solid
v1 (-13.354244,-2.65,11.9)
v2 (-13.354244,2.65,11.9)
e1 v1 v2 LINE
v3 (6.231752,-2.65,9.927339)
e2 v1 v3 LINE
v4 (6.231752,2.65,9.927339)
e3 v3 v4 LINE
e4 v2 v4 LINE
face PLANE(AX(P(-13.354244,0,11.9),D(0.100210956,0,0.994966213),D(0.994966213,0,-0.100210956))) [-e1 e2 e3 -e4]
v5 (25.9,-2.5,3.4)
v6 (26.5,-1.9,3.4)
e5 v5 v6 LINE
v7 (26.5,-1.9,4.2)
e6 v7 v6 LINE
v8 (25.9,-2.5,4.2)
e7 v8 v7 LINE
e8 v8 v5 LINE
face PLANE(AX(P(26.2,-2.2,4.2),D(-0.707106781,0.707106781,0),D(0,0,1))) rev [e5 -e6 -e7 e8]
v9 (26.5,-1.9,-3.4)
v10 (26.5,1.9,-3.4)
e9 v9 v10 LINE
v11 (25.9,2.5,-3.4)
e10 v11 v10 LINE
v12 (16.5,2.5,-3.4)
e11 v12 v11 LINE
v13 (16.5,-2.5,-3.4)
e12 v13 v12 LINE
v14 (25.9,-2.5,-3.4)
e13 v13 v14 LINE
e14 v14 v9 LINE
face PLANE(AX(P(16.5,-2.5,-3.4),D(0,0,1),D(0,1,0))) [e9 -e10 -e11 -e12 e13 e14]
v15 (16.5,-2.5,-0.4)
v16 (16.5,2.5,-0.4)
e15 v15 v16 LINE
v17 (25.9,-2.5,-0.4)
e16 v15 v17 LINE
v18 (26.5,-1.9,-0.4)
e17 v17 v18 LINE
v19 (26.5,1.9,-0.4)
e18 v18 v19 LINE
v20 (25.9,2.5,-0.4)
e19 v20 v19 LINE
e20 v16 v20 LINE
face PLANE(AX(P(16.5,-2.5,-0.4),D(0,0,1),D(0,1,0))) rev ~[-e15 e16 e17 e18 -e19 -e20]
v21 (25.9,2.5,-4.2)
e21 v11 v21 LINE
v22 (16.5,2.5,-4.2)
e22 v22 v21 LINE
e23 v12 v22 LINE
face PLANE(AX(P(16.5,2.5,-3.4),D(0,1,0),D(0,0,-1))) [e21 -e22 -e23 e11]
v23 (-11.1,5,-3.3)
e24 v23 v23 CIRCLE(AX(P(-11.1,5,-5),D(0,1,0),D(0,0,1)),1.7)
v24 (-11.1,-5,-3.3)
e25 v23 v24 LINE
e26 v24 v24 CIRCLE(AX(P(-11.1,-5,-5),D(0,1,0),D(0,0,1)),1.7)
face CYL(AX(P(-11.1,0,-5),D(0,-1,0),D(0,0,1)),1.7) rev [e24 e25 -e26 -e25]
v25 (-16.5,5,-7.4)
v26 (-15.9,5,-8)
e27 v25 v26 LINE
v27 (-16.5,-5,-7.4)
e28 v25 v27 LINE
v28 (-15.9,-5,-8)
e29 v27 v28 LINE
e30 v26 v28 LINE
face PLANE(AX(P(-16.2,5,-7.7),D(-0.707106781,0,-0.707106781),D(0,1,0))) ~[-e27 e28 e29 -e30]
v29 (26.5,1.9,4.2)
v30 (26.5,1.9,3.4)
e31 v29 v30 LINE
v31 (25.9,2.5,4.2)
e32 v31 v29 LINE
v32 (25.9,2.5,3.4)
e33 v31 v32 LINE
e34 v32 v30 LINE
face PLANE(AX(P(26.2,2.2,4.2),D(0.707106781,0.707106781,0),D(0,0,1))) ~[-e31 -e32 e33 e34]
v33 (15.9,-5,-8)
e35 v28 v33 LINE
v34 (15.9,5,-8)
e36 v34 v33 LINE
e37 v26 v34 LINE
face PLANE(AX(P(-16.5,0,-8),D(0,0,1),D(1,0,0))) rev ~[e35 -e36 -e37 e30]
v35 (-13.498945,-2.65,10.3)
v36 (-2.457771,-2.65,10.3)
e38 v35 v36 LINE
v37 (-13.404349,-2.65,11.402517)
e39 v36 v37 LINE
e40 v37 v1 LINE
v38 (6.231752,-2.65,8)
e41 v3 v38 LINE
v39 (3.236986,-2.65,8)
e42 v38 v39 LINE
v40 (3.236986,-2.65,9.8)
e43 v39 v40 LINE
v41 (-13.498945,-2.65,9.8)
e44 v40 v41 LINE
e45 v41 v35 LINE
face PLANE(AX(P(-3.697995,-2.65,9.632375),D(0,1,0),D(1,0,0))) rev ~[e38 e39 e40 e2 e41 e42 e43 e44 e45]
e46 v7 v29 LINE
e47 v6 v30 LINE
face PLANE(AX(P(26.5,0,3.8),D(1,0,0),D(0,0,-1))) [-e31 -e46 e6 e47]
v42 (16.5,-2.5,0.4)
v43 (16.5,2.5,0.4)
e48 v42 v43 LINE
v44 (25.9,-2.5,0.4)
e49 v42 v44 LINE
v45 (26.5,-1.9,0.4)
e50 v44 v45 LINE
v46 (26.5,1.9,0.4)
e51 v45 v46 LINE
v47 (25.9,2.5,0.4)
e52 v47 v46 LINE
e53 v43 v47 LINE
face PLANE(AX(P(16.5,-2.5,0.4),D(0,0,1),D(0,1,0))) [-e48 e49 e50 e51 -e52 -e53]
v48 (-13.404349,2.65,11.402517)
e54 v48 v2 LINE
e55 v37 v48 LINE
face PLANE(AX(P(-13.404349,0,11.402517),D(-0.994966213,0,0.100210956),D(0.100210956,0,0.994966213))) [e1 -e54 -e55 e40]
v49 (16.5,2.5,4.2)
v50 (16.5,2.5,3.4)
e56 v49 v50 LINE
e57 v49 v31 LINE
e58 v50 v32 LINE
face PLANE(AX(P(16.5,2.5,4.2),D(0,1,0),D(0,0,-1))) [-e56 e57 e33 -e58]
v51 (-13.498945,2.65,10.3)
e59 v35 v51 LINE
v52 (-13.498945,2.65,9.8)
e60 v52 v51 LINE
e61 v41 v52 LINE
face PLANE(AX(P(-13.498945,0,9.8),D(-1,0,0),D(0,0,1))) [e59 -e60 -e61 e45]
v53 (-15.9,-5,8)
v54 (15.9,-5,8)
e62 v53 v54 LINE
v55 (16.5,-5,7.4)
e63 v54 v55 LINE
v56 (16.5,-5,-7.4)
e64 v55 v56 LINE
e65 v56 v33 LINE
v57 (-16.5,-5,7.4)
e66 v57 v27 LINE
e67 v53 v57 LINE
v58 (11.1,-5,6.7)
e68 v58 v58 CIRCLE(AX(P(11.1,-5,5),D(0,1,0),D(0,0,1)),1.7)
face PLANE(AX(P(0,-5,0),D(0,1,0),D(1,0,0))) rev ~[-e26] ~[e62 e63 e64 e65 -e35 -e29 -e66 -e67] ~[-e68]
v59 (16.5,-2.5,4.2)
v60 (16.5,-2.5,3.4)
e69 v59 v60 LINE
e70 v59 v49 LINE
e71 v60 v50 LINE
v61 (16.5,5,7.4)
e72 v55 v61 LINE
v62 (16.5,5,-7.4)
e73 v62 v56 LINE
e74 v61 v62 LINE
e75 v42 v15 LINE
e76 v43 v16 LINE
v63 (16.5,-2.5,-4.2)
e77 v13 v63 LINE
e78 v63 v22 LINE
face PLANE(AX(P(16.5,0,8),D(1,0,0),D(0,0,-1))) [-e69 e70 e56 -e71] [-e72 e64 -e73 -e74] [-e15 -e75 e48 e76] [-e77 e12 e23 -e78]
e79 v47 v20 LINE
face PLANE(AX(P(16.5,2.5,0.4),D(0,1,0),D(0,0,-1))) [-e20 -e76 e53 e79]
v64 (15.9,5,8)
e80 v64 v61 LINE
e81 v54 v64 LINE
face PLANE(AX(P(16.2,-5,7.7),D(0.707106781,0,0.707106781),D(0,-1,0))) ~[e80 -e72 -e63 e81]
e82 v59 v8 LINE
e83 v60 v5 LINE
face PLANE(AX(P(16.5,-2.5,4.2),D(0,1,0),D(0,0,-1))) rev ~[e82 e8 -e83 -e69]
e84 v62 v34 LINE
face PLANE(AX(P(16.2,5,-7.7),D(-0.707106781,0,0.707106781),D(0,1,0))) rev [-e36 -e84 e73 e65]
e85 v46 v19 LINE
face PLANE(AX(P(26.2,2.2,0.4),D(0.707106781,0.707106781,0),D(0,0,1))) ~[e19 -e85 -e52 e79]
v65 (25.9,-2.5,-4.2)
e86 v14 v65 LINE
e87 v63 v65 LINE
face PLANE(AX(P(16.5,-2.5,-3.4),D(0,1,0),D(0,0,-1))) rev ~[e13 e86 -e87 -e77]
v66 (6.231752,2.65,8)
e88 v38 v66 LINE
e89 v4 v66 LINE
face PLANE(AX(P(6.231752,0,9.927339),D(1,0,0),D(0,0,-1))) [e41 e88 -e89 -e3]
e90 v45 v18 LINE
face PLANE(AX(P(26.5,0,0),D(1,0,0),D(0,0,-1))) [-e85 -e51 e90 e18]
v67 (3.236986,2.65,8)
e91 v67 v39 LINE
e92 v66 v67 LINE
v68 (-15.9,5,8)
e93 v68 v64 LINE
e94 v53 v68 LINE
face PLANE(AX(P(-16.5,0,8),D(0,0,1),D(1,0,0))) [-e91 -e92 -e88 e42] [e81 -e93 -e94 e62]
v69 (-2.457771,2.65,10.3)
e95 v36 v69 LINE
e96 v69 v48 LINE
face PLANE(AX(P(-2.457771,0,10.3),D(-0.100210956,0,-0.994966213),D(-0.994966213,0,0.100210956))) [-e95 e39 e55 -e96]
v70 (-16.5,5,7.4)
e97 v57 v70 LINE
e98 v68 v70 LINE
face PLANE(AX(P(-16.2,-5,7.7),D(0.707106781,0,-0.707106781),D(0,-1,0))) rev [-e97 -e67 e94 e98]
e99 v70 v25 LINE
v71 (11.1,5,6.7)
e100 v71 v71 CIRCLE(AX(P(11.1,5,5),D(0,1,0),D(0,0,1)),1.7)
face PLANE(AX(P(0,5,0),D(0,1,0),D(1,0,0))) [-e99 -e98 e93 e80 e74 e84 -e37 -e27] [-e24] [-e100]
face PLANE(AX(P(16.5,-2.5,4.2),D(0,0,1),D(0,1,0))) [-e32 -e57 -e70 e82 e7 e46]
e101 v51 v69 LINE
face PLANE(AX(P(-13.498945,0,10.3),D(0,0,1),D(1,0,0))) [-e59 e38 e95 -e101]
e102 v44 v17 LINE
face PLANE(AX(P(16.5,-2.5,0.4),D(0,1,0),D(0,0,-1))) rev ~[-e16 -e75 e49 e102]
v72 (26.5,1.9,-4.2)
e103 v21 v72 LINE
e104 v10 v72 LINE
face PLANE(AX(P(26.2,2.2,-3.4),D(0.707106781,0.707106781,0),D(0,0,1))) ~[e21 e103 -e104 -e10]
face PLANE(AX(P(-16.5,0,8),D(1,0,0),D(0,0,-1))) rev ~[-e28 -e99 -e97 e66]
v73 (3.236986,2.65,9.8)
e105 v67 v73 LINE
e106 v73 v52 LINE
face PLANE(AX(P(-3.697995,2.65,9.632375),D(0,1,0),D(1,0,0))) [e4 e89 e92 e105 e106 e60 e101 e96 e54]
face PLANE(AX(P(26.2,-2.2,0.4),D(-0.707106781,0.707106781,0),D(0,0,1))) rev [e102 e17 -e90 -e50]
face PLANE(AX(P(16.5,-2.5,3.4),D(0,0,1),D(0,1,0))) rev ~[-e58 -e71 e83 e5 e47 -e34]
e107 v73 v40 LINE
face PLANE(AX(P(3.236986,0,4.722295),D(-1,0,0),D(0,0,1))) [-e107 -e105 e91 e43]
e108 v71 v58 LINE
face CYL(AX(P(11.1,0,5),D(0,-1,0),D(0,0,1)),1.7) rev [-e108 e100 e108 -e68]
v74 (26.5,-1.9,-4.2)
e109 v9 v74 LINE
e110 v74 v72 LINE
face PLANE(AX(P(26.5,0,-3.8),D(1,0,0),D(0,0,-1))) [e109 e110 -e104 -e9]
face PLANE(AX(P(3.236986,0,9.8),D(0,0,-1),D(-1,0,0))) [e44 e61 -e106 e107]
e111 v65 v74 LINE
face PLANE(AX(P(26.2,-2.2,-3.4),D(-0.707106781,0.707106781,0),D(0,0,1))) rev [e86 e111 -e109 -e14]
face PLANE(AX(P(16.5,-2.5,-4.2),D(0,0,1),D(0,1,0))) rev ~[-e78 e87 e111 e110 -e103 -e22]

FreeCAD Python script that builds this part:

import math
import FreeCAD as App
import Part
import Sketcher

V = App.Vector
Q = App.Units.Quantity


def edges_at(feature, points):
    """Names of the edges that pass closest to the given points."""
    edges = feature.Shape.Edges
    near = lambda p: min(range(len(edges)), key=lambda i: edges[i].distToShape(Part.Vertex(*p))[0])
    return sorted({f"Edge{near(p) + 1}" for p in points})

doc = App.newDocument("Part")
body = doc.addObject("PartDesign::Body", "Body")

sketch1 = body.newObject("Sketcher::SketchObject", "Sketch")
sketch1.AttachmentSupport = (doc.getObject("XZ_Plane"), [""])
sketch1.MapMode = "FlatFace"
sketch1.addGeometry([
    Part.LineSegment(V(-16.5, -8, 0), V(-16.5, 8, 0)),
    Part.LineSegment(V(-16.5, 8, 0), V(16.5, 8, 0)),
    Part.LineSegment(V(16.5, 8, 0), V(16.5, -8, 0)),
    Part.LineSegment(V(16.5, -8, 0), V(-16.5, -8, 0)),
    Part.Circle(V(11.1, 5, 0), V(0, 0, 1), 1.7),
    Part.Circle(V(-11.1, -5, 0), V(0, 0, 1), 1.7),
], False)
sketch1.addConstraint([
    Sketcher.Constraint("Coincident", 0, 2, 1, 1),
    Sketcher.Constraint("Coincident", 1, 2, 2, 1),
    Sketcher.Constraint("Coincident", 2, 2, 3, 1),
    Sketcher.Constraint("Coincident", 3, 2, 0, 1),
    Sketcher.Constraint("Vertical", 0),
    Sketcher.Constraint("Horizontal", 1),
    Sketcher.Constraint("Vertical", 2),
    Sketcher.Constraint("Horizontal", 3),
    Sketcher.Constraint("Equal", 4, 5),
    Sketcher.Constraint("Symmetric", 4, 3, 5, 3, -1, 1),
    Sketcher.Constraint("Symmetric", 0, 2, 2, 2, -1, 1),
    Sketcher.Constraint("Diameter", 4, Q("3.4 mm")),
    Sketcher.Constraint("DistanceX", 1, 1, 1, 2, Q("33 mm")),
    Sketcher.Constraint("DistanceY", 0, 1, 0, 2, Q("16 mm")),
    Sketcher.Constraint("DistanceY", -1, 1, 4, 3, Q("5 mm")),
    Sketcher.Constraint("DistanceX", -1, 1, 4, 3, Q("11.1 mm")),
])
pad1 = body.newObject("PartDesign::Pad", "Pad")
pad1.Profile = sketch1
pad1.Length = 10
pad1.Midplane = True

sketch2 = body.newObject("Sketcher::SketchObject", "Sketch001")
sketch2.AttachmentSupport = (doc.getObject("XZ_Plane"), [""])
sketch2.MapMode = "FlatFace"
sketch2.addGeometry([
    Part.LineSegment(V(3.236986, 9.8, 0), V(-13.498945, 9.8, 0)),
    Part.LineSegment(V(-13.498945, 9.8, 0), V(-13.498945, 10.3, 0)),
    Part.LineSegment(V(-13.498945, 10.3, 0), V(-2.457771, 10.3, 0)),
    Part.LineSegment(V(-2.457771, 10.3, 0), V(-13.404349, 11.402517, 0)),
    Part.LineSegment(V(-13.404349, 11.402517, 0), V(-13.354244, 11.9, 0)),
    Part.LineSegment(V(-13.354244, 11.9, 0), V(6.231752, 9.927339, 0)),
    Part.LineSegment(V(6.231752, 9.927339, 0), V(6.231752, 4.606941, 0)),
    Part.ArcOfCircle(Part.Circle(V(4.736956, 4.731773, 0), V(0, 0, 1), 1.5), math.radians(-179.637957), math.radians(-4.77373)),
    Part.LineSegment(V(3.236986, 4.722295, 0), V(3.236986, 9.8, 0)),
], False)
sketch2.addConstraint([
    Sketcher.Constraint("Coincident", 0, 2, 1, 1),
    Sketcher.Constraint("Coincident", 1, 2, 2, 1),
    Sketcher.Constraint("Coincident", 2, 2, 3, 1),
    Sketcher.Constraint("Coincident", 3, 2, 4, 1),
    Sketcher.Constraint("Coincident", 4, 2, 5, 1),
    Sketcher.Constraint("Coincident", 5, 2, 6, 1),
    Sketcher.Constraint("Coincident", 6, 2, 7, 2),
    Sketcher.Constraint("Coincident", 7, 1, 8, 1),
    Sketcher.Constraint("Coincident", 8, 2, 0, 1),
    Sketcher.Constraint("Horizontal", 0),
    Sketcher.Constraint("Vertical", 1),
    Sketcher.Constraint("Horizontal", 2),
    Sketcher.Constraint("Vertical", 6),
    Sketcher.Constraint("Vertical", 8),
    Sketcher.Constraint("Perpendicular", 3, 4),
    Sketcher.Constraint("Perpendicular", 4, 5),
    Sketcher.Constraint("Radius", 7, Q("1.5 mm")),
    Sketcher.Constraint("DistanceY", 1, 1, 1, 2, Q("0.5 mm")),
    Sketcher.Constraint("Distance", 4, Q("0.5 mm")),
    Sketcher.Constraint("DistanceY", -1, 1, 0, 2, Q("9.8 mm")),
    Sketcher.Constraint("DistanceY", -1, 1, 4, 2, Q("11.9 mm")),
    Sketcher.Constraint("DistanceX", 0, 2, 0, 1, Q("16.735931 mm")),
    Sketcher.Constraint("DistanceX", 0, 2, 7, 3, Q("18.235901 mm")),
    Sketcher.Constraint("DistanceX", 1, 2, 4, 2, Q("0.144701 mm")),
    Sketcher.Constraint("DistanceX", 3, 2, 5, 2, Q("19.636102 mm")),
    Sketcher.Constraint("Distance", 3, Q("11.00196 mm")),
    Sketcher.Constraint("DistanceY", 6, 2, 6, 1, Q("5.320397 mm")),
    Sketcher.Constraint("DistanceX", 2, 2, -1, 1, Q("2.457771 mm")),
])
pad2 = body.newObject("PartDesign::Pad", "Pad001")
pad2.Profile = sketch2
pad2.Length = 5.3
pad2.Midplane = True

sketch3 = body.newObject("Sketcher::SketchObject", "Sketch002")
sketch3.AttachmentSupport = (doc.getObject("YZ_Plane"), [""])
sketch3.MapMode = "FlatFace"
sketch3.AttachmentOffset = App.Placement(V(0, 0, 16.5), App.Rotation())
sketch3.addGeometry([
    Part.LineSegment(V(2.5, 4.2, 0), V(-2.5, 4.2, 0)),
    Part.LineSegment(V(-2.5, 4.2, 0), V(-2.5, 3.4, 0)),
    Part.LineSegment(V(-2.5, 3.4, 0), V(2.5, 3.4, 0)),
    Part.LineSegment(V(2.5, 3.4, 0), V(2.5, 4.2, 0)),
    Part.LineSegment(V(2.5, 0.4, 0), V(-2.5, 0.4, 0)),
    Part.LineSegment(V(-2.5, 0.4, 0), V(-2.5, -0.4, 0)),
    Part.LineSegment(V(-2.5, -0.4, 0), V(2.5, -0.4, 0)),
    Part.LineSegment(V(2.5, -0.4, 0), V(2.5, 0.4, 0)),
    Part.LineSegment(V(2.5, -3.4, 0), V(-2.5, -3.4, 0)),
    Part.LineSegment(V(-2.5, -3.4, 0), V(-2.5, -4.2, 0)),
    Part.LineSegment(V(-2.5, -4.2, 0), V(2.5, -4.2, 0)),
    Part.LineSegment(V(2.5, -4.2, 0), V(2.5, -3.4, 0)),
], False)
sketch3.addConstraint([
    Sketcher.Constraint("Coincident", 0, 2, 1, 1),
    Sketcher.Constraint("Coincident", 1, 2, 2, 1),
    Sketcher.Constraint("Coincident", 2, 2, 3, 1),
    Sketcher.Constraint("Coincident", 3, 2, 0, 1),
    Sketcher.Constraint("Coincident", 4, 2, 5, 1),
    Sketcher.Constraint("Coincident", 5, 2, 6, 1),
    Sketcher.Constraint("Coincident", 6, 2, 7, 1),
    Sketcher.Constraint("Coincident", 7, 2, 4, 1),
    Sketcher.Constraint("Coincident", 8, 2, 9, 1),
    Sketcher.Constraint("Coincident", 9, 2, 10, 1),
    Sketcher.Constraint("Coincident", 10, 2, 11, 1),
    Sketcher.Constraint("Coincident", 11, 2, 8, 1),
    Sketcher.Constraint("Horizontal", 0),
    Sketcher.Constraint("Vertical", 1),
    Sketcher.Constraint("Horizontal", 2),
    Sketcher.Constraint("Vertical", 3),
    Sketcher.Constraint("Horizontal", 4),
    Sketcher.Constraint("Vertical", 5),
    Sketcher.Constraint("Horizontal", 6),
    Sketcher.Constraint("Vertical", 7),
    Sketcher.Constraint("Horizontal", 8),
    Sketcher.Constraint("Vertical", 9),
    Sketcher.Constraint("Horizontal", 10),
    Sketcher.Constraint("Vertical", 11),
    Sketcher.Constraint("Symmetric", 4, 2, 6, 2, -1, 1),
    Sketcher.Constraint("Symmetric", 2, 2, 8, 2, -1, 1),
    Sketcher.Constraint("Symmetric", 0, 2, 10, 2, -1, 1),
    Sketcher.Constraint("Vertical", 1, 2, 4, 2),
    Sketcher.Constraint("Vertical", 3, 2, 6, 2),
    Sketcher.Constraint("Equal", 3, 5),
    Sketcher.Constraint("DistanceX", 0, 2, 0, 1, Q("5 mm")),
    Sketcher.Constraint("DistanceY", 1, 2, 1, 1, Q("0.8 mm")),
    Sketcher.Constraint("DistanceY", 4, 2, 1, 2, Q("3 mm")),
])
pad3 = body.newObject("PartDesign::Pad", "Pad002")
pad3.Profile = sketch3
pad3.Length = 10
doc.recompute()

chamfer = body.newObject("PartDesign::Chamfer", "Chamfer")
chamfer.Base = (pad3, edges_at(pad3, [
    (26.5, -2.5, 3.8),
    (26.5, 2.5, 3.8),
    (26.5, -2.5, 0),
    (26.5, 2.5, 0),
    (-16.5, 0, -8),
    (26.5, -2.5, -3.8),
    (16.5, 0, -8),
    (26.5, 2.5, -3.8),
    (16.5, 0, 8),
    (-16.5, 0, 8),
]))
chamfer.Size = 0.6

doc.recompute()
